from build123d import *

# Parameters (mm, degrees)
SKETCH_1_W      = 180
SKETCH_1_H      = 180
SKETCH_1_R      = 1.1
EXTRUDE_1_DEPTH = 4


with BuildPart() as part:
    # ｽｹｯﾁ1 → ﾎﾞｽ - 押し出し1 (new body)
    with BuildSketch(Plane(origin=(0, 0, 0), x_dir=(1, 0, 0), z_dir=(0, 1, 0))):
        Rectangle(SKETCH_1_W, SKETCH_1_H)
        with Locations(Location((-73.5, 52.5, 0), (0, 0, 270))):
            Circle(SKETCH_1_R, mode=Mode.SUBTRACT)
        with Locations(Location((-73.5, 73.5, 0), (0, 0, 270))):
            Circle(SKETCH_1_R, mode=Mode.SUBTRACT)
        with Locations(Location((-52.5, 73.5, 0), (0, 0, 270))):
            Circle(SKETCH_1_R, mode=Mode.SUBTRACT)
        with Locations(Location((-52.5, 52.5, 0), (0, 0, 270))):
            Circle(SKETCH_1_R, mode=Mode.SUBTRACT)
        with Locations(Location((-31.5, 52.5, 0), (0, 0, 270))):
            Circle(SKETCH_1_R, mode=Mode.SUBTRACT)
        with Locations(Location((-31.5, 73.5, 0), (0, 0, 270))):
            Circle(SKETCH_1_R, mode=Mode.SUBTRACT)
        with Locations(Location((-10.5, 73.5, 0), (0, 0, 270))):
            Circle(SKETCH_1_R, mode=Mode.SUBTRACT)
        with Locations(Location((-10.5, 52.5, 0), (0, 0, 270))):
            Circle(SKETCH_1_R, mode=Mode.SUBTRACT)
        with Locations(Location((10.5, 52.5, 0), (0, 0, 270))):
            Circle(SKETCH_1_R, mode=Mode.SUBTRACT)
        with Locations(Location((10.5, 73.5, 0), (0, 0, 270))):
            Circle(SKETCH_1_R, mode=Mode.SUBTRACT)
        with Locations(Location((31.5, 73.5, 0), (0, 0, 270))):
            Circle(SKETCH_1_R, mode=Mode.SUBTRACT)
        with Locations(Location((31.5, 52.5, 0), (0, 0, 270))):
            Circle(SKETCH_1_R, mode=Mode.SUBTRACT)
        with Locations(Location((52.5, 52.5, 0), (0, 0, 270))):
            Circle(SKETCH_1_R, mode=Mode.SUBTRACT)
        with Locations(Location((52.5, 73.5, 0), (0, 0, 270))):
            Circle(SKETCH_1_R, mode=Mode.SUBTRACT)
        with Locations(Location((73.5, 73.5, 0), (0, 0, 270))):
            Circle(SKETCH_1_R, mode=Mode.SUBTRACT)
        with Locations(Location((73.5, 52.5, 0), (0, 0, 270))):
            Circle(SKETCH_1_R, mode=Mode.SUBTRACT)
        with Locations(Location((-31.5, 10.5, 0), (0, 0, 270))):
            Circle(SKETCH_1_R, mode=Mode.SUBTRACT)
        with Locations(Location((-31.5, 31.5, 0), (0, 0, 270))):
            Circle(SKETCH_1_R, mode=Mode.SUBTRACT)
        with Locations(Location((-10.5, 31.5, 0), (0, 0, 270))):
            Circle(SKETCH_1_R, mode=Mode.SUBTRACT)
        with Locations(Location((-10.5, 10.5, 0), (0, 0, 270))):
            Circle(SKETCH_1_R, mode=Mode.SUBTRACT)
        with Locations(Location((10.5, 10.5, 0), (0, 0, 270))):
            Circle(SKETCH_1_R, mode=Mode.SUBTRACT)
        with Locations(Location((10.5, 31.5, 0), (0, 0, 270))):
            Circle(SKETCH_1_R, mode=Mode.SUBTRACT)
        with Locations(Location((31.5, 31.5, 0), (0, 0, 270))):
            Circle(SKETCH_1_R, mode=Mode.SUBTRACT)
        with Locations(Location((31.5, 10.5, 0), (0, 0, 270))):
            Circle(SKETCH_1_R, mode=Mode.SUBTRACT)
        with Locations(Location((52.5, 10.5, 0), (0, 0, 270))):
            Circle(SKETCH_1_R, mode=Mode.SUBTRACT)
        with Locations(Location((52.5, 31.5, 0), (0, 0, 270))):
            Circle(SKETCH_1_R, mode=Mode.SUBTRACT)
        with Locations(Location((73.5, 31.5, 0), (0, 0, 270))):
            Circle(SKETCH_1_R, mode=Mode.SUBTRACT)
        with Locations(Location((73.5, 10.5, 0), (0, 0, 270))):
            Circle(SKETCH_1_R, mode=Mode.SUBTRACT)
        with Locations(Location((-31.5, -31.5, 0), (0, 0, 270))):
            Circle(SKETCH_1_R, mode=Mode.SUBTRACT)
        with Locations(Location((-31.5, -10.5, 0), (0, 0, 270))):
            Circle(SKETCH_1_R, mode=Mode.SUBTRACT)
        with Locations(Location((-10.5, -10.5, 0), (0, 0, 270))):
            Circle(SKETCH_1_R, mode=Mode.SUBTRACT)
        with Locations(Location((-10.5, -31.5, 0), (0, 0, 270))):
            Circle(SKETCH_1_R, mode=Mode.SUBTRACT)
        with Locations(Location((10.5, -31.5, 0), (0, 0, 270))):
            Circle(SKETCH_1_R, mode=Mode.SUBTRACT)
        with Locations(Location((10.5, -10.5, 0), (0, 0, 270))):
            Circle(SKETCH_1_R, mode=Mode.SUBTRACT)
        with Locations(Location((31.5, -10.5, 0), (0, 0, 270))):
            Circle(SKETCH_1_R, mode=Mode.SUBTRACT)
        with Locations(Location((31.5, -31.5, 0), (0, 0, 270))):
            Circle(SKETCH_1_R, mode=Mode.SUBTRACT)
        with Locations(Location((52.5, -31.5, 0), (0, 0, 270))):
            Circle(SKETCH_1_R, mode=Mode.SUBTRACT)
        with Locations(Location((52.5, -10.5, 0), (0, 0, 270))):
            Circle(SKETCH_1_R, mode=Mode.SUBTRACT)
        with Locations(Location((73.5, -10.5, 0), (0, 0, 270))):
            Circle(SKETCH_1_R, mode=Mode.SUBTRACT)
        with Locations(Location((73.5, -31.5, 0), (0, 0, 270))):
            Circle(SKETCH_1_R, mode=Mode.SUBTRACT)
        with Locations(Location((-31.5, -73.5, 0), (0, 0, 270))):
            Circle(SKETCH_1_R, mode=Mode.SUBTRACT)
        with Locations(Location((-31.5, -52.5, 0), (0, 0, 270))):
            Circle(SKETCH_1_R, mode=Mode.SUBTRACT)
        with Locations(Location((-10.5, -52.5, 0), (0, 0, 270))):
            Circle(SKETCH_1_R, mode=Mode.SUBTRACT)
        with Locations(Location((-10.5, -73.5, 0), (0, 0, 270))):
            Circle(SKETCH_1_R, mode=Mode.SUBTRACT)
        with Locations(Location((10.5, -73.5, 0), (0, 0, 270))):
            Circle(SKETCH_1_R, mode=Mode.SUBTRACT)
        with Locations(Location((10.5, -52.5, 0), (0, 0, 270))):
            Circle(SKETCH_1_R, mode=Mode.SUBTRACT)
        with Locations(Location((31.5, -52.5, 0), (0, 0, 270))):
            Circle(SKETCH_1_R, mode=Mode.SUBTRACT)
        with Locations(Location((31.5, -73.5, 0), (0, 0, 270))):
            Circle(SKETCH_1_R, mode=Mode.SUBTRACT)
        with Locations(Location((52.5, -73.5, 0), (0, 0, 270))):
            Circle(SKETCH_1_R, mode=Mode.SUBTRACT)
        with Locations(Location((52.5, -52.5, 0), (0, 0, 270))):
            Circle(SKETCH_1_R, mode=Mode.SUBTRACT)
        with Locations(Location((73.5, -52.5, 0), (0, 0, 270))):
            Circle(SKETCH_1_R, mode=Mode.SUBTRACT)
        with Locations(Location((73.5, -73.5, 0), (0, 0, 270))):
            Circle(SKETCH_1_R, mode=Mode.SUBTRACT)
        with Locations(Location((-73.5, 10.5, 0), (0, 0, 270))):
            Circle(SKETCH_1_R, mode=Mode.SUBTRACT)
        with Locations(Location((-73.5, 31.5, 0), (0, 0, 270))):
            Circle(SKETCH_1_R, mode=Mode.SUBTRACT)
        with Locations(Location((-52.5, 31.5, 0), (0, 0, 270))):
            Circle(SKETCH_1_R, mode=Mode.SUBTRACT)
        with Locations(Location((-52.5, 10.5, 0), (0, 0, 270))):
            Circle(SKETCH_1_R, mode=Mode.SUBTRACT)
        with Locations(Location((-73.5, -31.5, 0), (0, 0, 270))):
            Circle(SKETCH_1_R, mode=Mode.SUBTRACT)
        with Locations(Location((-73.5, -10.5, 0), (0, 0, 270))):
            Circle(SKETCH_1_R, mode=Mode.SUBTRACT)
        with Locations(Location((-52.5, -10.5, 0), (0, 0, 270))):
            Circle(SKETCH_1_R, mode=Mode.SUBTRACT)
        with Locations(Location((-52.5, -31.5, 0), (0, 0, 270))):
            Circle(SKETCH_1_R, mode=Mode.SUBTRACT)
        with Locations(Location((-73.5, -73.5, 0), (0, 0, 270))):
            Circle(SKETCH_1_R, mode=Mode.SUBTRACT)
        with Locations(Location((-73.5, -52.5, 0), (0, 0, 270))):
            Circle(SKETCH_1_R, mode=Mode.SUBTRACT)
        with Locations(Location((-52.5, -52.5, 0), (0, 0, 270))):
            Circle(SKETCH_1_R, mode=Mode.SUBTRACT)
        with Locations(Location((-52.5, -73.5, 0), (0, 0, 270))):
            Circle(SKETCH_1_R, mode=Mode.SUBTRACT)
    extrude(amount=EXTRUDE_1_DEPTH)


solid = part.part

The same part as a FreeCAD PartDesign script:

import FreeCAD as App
import Part
import Sketcher

V = App.Vector
Q = App.Units.Quantity

doc = App.newDocument("Part")
body = doc.addObject("PartDesign::Body", "Body")

sketch1 = body.newObject("Sketcher::SketchObject", "Sketch")
sketch1.AttachmentSupport = (doc.getObject("XZ_Plane"), [""])
sketch1.MapMode = "FlatFace"
sketch1.addGeometry(Part.LineSegment(V(-90, -90, 0), V(-90, 90, 0)), False)
sketch1.addGeometry(Part.LineSegment(V(-90, 90, 0), V(90, 90, 0)), False)
sketch1.addGeometry(Part.LineSegment(V(90, 90, 0), V(90, -90, 0)), False)
sketch1.addGeometry(Part.LineSegment(V(90, -90, 0), V(-90, -90, 0)), False)
sketch1.addGeometry(Part.Circle(V(-73.5, 73.5, 0), V(0, 0, 1), 1.1), False)
sketch1.addGeometry(Part.Circle(V(-52.5, 73.5, 0), V(0, 0, 1), 1.1), False)
sketch1.addGeometry(Part.Circle(V(-73.5, 52.5, 0), V(0, 0, 1), 1.1), False)
sketch1.addGeometry(Part.Circle(V(-52.5, 52.5, 0), V(0, 0, 1), 1.1), False)
sketch1.addGeometry(Part.Circle(V(-31.5, 73.5, 0), V(0, 0, 1), 1.1), False)
sketch1.addGeometry(Part.Circle(V(-10.5, 73.5, 0), V(0, 0, 1), 1.1), False)
sketch1.addGeometry(Part.Circle(V(-31.5, 52.5, 0), V(0, 0, 1), 1.1), False)
sketch1.addGeometry(Part.Circle(V(-10.5, 52.5, 0), V(0, 0, 1), 1.1), False)
sketch1.addGeometry(Part.Circle(V(-73.5, 31.5, 0), V(0, 0, 1), 1.1), False)
sketch1.addGeometry(Part.Circle(V(-52.5, 31.5, 0), V(0, 0, 1), 1.1), False)
sketch1.addGeometry(Part.Circle(V(-73.5, 10.5, 0), V(0, 0, 1), 1.1), False)
sketch1.addGeometry(Part.Circle(V(-52.5, 10.5, 0), V(0, 0, 1), 1.1), False)
sketch1.addGeometry(Part.Circle(V(-31.5, 31.5, 0), V(0, 0, 1), 1.1), False)
sketch1.addGeometry(Part.Circle(V(-10.5, 31.5, 0), V(0, 0, 1), 1.1), False)
sketch1.addGeometry(Part.Circle(V(-31.5, 10.5, 0), V(0, 0, 1), 1.1), False)
sketch1.addGeometry(Part.Circle(V(-10.5, 10.5, 0), V(0, 0, 1), 1.1), False)
sketch1.addGeometry(Part.Circle(V(10.5, 73.5, 0), V(0, 0, 1), 1.1), False)
sketch1.addGeometry(Part.Circle(V(31.5, 73.5, 0), V(0, 0, 1), 1.1), False)
sketch1.addGeometry(Part.Circle(V(10.5, 52.5, 0), V(0, 0, 1), 1.1), False)
sketch1.addGeometry(Part.Circle(V(31.5, 52.5, 0), V(0, 0, 1), 1.1), False)
sketch1.addGeometry(Part.Circle(V(52.5, 73.5, 0), V(0, 0, 1), 1.1), False)
sketch1.addGeometry(Part.Circle(V(73.5, 73.5, 0), V(0, 0, 1), 1.1), False)
sketch1.addGeometry(Part.Circle(V(52.5, 52.5, 0), V(0, 0, 1), 1.1), False)
sketch1.addGeometry(Part.Circle(V(73.5, 52.5, 0), V(0, 0, 1), 1.1), False)
sketch1.addGeometry(Part.Circle(V(10.5, 31.5, 0), V(0, 0, 1), 1.1), False)
sketch1.addGeometry(Part.Circle(V(31.5, 31.5, 0), V(0, 0, 1), 1.1), False)
sketch1.addGeometry(Part.Circle(V(10.5, 10.5, 0), V(0, 0, 1), 1.1), False)
sketch1.addGeometry(Part.Circle(V(31.5, 10.5, 0), V(0, 0, 1), 1.1), False)
sketch1.addGeometry(Part.Circle(V(52.5, 31.5, 0), V(0, 0, 1), 1.1), False)
sketch1.addGeometry(Part.Circle(V(73.5, 31.5, 0), V(0, 0, 1), 1.1), False)
sketch1.addGeometry(Part.Circle(V(52.5, 10.5, 0), V(0, 0, 1), 1.1), False)
sketch1.addGeometry(Part.Circle(V(73.5, 10.5, 0), V(0, 0, 1), 1.1), False)
sketch1.addGeometry(Part.Circle(V(-73.5, -10.5, 0), V(0, 0, 1), 1.1), False)
sketch1.addGeometry(Part.Circle(V(-52.5, -10.5, 0), V(0, 0, 1), 1.1), False)
sketch1.addGeometry(Part.Circle(V(-73.5, -31.5, 0), V(0, 0, 1), 1.1), False)
sketch1.addGeometry(Part.Circle(V(-52.5, -31.5, 0), V(0, 0, 1), 1.1), False)
sketch1.addGeometry(Part.Circle(V(-31.5, -10.5, 0), V(0, 0, 1), 1.1), False)
sketch1.addGeometry(Part.Circle(V(-10.5, -10.5, 0), V(0, 0, 1), 1.1), False)
sketch1.addGeometry(Part.Circle(V(-31.5, -31.5, 0), V(0, 0, 1), 1.1), False)
sketch1.addGeometry(Part.Circle(V(-10.5, -31.5, 0), V(0, 0, 1), 1.1), False)
sketch1.addGeometry(Part.Circle(V(-73.5, -52.5, 0), V(0, 0, 1), 1.1), False)
sketch1.addGeometry(Part.Circle(V(-52.5, -52.5, 0), V(0, 0, 1), 1.1), False)
sketch1.addGeometry(Part.Circle(V(-73.5, -73.5, 0), V(0, 0, 1), 1.1), False)
sketch1.addGeometry(Part.Circle(V(-52.5, -73.5, 0), V(0, 0, 1), 1.1), False)
sketch1.addGeometry(Part.Circle(V(-31.5, -52.5, 0), V(0, 0, 1), 1.1), False)
sketch1.addGeometry(Part.Circle(V(-10.5, -52.5, 0), V(0, 0, 1), 1.1), False)
sketch1.addGeometry(Part.Circle(V(-31.5, -73.5, 0), V(0, 0, 1), 1.1), False)
sketch1.addGeometry(Part.Circle(V(-10.5, -73.5, 0), V(0, 0, 1), 1.1), False)
sketch1.addGeometry(Part.Circle(V(10.5, -10.5, 0), V(0, 0, 1), 1.1), False)
sketch1.addGeometry(Part.Circle(V(31.5, -10.5, 0), V(0, 0, 1), 1.1), False)
sketch1.addGeometry(Part.Circle(V(10.5, -31.5, 0), V(0, 0, 1), 1.1), False)
sketch1.addGeometry(Part.Circle(V(31.5, -31.5, 0), V(0, 0, 1), 1.1), False)
sketch1.addGeometry(Part.Circle(V(52.5, -10.5, 0), V(0, 0, 1), 1.1), False)
sketch1.addGeometry(Part.Circle(V(73.5, -10.5, 0), V(0, 0, 1), 1.1), False)
sketch1.addGeometry(Part.Circle(V(52.5, -31.5, 0), V(0, 0, 1), 1.1), False)
sketch1.addGeometry(Part.Circle(V(73.5, -31.5, 0), V(0, 0, 1), 1.1), False)
sketch1.addGeometry(Part.Circle(V(10.5, -52.5, 0), V(0, 0, 1), 1.1), False)
sketch1.addGeometry(Part.Circle(V(31.5, -52.5, 0), V(0, 0, 1), 1.1), False)
sketch1.addGeometry(Part.Circle(V(10.5, -73.5, 0), V(0, 0, 1), 1.1), False)
sketch1.addGeometry(Part.Circle(V(31.5, -73.5, 0), V(0, 0, 1), 1.1), False)
sketch1.addGeometry(Part.Circle(V(52.5, -52.5, 0), V(0, 0, 1), 1.1), False)
sketch1.addGeometry(Part.Circle(V(73.5, -52.5, 0), V(0, 0, 1), 1.1), False)
sketch1.addGeometry(Part.Circle(V(52.5, -73.5, 0), V(0, 0, 1), 1.1), False)
sketch1.addGeometry(Part.Circle(V(73.5, -73.5, 0), V(0, 0, 1), 1.1), False)
sketch1.addConstraint(Sketcher.Constraint("Coincident", 0, 2, 1, 1))
sketch1.addConstraint(Sketcher.Constraint("Coincident", 1, 2, 2, 1))
sketch1.addConstraint(Sketcher.Constraint("Coincident", 2, 2, 3, 1))
sketch1.addConstraint(Sketcher.Constraint("Coincident", 3, 2, 0, 1))
sketch1.addConstraint(Sketcher.Constraint("Vertical", 0))
sketch1.addConstraint(Sketcher.Constraint("Horizontal", 1))
sketch1.addConstraint(Sketcher.Constraint("Vertical", 2))
sketch1.addConstraint(Sketcher.Constraint("Horizontal", 3))
sketch1.addConstraint(Sketcher.Constraint("Equal", 4, 5))
sketch1.addConstraint(Sketcher.Constraint("Equal", 5, 6))
sketch1.addConstraint(Sketcher.Constraint("Equal", 6, 7))
sketch1.addConstraint(Sketcher.Constraint("Equal", 7, 8))
sketch1.addConstraint(Sketcher.Constraint("Equal", 8, 9))
sketch1.addConstraint(Sketcher.Constraint("Equal", 9, 10))
sketch1.addConstraint(Sketcher.Constraint("Equal", 10, 11))
sketch1.addConstraint(Sketcher.Constraint("Equal", 11, 12))
sketch1.addConstraint(Sketcher.Constraint("Equal", 12, 13))
sketch1.addConstraint(Sketcher.Constraint("Equal", 13, 14))
sketch1.addConstraint(Sketcher.Constraint("Equal", 14, 15))
sketch1.addConstraint(Sketcher.Constraint("Equal", 15, 16))
sketch1.addConstraint(Sketcher.Constraint("Equal", 16, 17))
sketch1.addConstraint(Sketcher.Constraint("Equal", 17, 18))
sketch1.addConstraint(Sketcher.Constraint("Equal", 18, 19))
sketch1.addConstraint(Sketcher.Constraint("Equal", 19, 20))
sketch1.addConstraint(Sketcher.Constraint("Equal", 20, 21))
sketch1.addConstraint(Sketcher.Constraint("Equal", 21, 22))
sketch1.addConstraint(Sketcher.Constraint("Equal", 22, 23))
sketch1.addConstraint(Sketcher.Constraint("Equal", 23, 24))
sketch1.addConstraint(Sketcher.Constraint("Equal", 24, 25))
sketch1.addConstraint(Sketcher.Constraint("Equal", 25, 26))
sketch1.addConstraint(Sketcher.Constraint("Equal", 26, 27))
sketch1.addConstraint(Sketcher.Constraint("Equal", 27, 28))
sketch1.addConstraint(Sketcher.Constraint("Equal", 28, 29))
sketch1.addConstraint(Sketcher.Constraint("Equal", 29, 30))
sketch1.addConstraint(Sketcher.Constraint("Equal", 30, 31))
sketch1.addConstraint(Sketcher.Constraint("Equal", 31, 32))
sketch1.addConstraint(Sketcher.Constraint("Equal", 32, 33))
sketch1.addConstraint(Sketcher.Constraint("Equal", 33, 34))
sketch1.addConstraint(Sketcher.Constraint("Equal", 34, 35))
sketch1.addConstraint(Sketcher.Constraint("Equal", 35, 36))
sketch1.addConstraint(Sketcher.Constraint("Equal", 36, 37))
sketch1.addConstraint(Sketcher.Constraint("Equal", 37, 38))
sketch1.addConstraint(Sketcher.Constraint("Equal", 38, 39))
sketch1.addConstraint(Sketcher.Constraint("Equal", 39, 40))
sketch1.addConstraint(Sketcher.Constraint("Equal", 40, 41))
sketch1.addConstraint(Sketcher.Constraint("Equal", 41, 42))
sketch1.addConstraint(Sketcher.Constraint("Equal", 42, 43))
sketch1.addConstraint(Sketcher.Constraint("Equal", 43, 44))
sketch1.addConstraint(Sketcher.Constraint("Equal", 44, 45))
sketch1.addConstraint(Sketcher.Constraint("Equal", 45, 46))
sketch1.addConstraint(Sketcher.Constraint("Equal", 46, 47))
sketch1.addConstraint(Sketcher.Constraint("Equal", 47, 48))
sketch1.addConstraint(Sketcher.Constraint("Equal", 48, 49))
sketch1.addConstraint(Sketcher.Constraint("Equal", 49, 50))
sketch1.addConstraint(Sketcher.Constraint("Equal", 50, 51))
sketch1.addConstraint(Sketcher.Constraint("Equal", 51, 52))
sketch1.addConstraint(Sketcher.Constraint("Equal", 52, 53))
sketch1.addConstraint(Sketcher.Constraint("Equal", 53, 54))
sketch1.addConstraint(Sketcher.Constraint("Equal", 54, 55))
sketch1.addConstraint(Sketcher.Constraint("Equal", 55, 56))
sketch1.addConstraint(Sketcher.Constraint("Equal", 56, 57))
sketch1.addConstraint(Sketcher.Constraint("Equal", 57, 58))
sketch1.addConstraint(Sketcher.Constraint("Equal", 58, 59))
sketch1.addConstraint(Sketcher.Constraint("Equal", 59, 60))
sketch1.addConstraint(Sketcher.Constraint("Equal", 60, 61))
sketch1.addConstraint(Sketcher.Constraint("Equal", 61, 62))
sketch1.addConstraint(Sketcher.Constraint("Equal", 62, 63))
sketch1.addConstraint(Sketcher.Constraint("Equal", 63, 64))
sketch1.addConstraint(Sketcher.Constraint("Equal", 64, 65))
sketch1.addConstraint(Sketcher.Constraint("Equal", 65, 66))
sketch1.addConstraint(Sketcher.Constraint("Equal", 66, 67))
sketch1.addConstraint(Sketcher.Constraint("Symmetric", 35, 3, 36, 3, -1, 1))
sketch1.addConstraint(Sketcher.Constraint("Symmetric", 34, 3, 37, 3, -1, 1))
sketch1.addConstraint(Sketcher.Constraint("Symmetric", 33, 3, 38, 3, -1, 1))
sketch1.addConstraint(Sketcher.Constraint("Symmetric", 32, 3, 39, 3, -1, 1))
sketch1.addConstraint(Sketcher.Constraint("Symmetric", 31, 3, 40, 3, -1, 1))
sketch1.addConstraint(Sketcher.Constraint("Symmetric", 30, 3, 41, 3, -1, 1))
sketch1.addConstraint(Sketcher.Constraint("Symmetric", 29, 3, 42, 3, -1, 1))
sketch1.addConstraint(Sketcher.Constraint("Symmetric", 28, 3, 43, 3, -1, 1))
sketch1.addConstraint(Sketcher.Constraint("Symmetric", 27, 3, 44, 3, -1, 1))
sketch1.addConstraint(Sketcher.Constraint("Symmetric", 26, 3, 45, 3, -1, 1))
sketch1.addConstraint(Sketcher.Constraint("Symmetric", 25, 3, 46, 3, -1, 1))
sketch1.addConstraint(Sketcher.Constraint("Symmetric", 24, 3, 47, 3, -1, 1))
sketch1.addConstraint(Sketcher.Constraint("Symmetric", 23, 3, 48, 3, -1, 1))
sketch1.addConstraint(Sketcher.Constraint("Symmetric", 22, 3, 49, 3, -1, 1))
sketch1.addConstraint(Sketcher.Constraint("Symmetric", 21, 3, 50, 3, -1, 1))
sketch1.addConstraint(Sketcher.Constraint("Symmetric", 20, 3, 51, 3, -1, 1))
sketch1.addConstraint(Sketcher.Constraint("Symmetric", 19, 3, 52, 3, -1, 1))
sketch1.addConstraint(Sketcher.Constraint("Symmetric", 18, 3, 53, 3, -1, 1))
sketch1.addConstraint(Sketcher.Constraint("Symmetric", 17, 3, 54, 3, -1, 1))
sketch1.addConstraint(Sketcher.Constraint("Symmetric", 16, 3, 55, 3, -1, 1))
sketch1.addConstraint(Sketcher.Constraint("Symmetric", 15, 3, 56, 3, -1, 1))
sketch1.addConstraint(Sketcher.Constraint("Symmetric", 14, 3, 57, 3, -1, 1))
sketch1.addConstraint(Sketcher.Constraint("Symmetric", 13, 3, 58, 3, -1, 1))
sketch1.addConstraint(Sketcher.Constraint("Symmetric", 12, 3, 59, 3, -1, 1))
sketch1.addConstraint(Sketcher.Constraint("Symmetric", 11, 3, 60, 3, -1, 1))
sketch1.addConstraint(Sketcher.Constraint("Symmetric", 10, 3, 61, 3, -1, 1))
sketch1.addConstraint(Sketcher.Constraint("Symmetric", 9, 3, 62, 3, -1, 1))
sketch1.addConstraint(Sketcher.Constraint("Symmetric", 8, 3, 63, 3, -1, 1))
sketch1.addConstraint(Sketcher.Constraint("Symmetric", 7, 3, 64, 3, -1, 1))
sketch1.addConstraint(Sketcher.Constraint("Symmetric", 6, 3, 65, 3, -1, 1))
sketch1.addConstraint(Sketcher.Constraint("Symmetric", 5, 3, 66, 3, -1, 1))
sketch1.addConstraint(Sketcher.Constraint("Symmetric", 4, 3, 67, 3, -1, 1))
sketch1.addConstraint(Sketcher.Constraint("Symmetric", 0, 2, 2, 2, -1, 1))
sketch1.addConstraint(Sketcher.Constraint("Symmetric", 9, 3, 20, 3, -2))
sketch1.addConstraint(Sketcher.Constraint("Symmetric", 8, 3, 21, 3, -2))
sketch1.addConstraint(Sketcher.Constraint("Symmetric", 11, 3, 22, 3, -2))
sketch1.addConstraint(Sketcher.Constraint("Symmetric", 10, 3, 23, 3, -2))
sketch1.addConstraint(Sketcher.Constraint("Symmetric", 5, 3, 24, 3, -2))
sketch1.addConstraint(Sketcher.Constraint("Symmetric", 4, 3, 25, 3, -2))
sketch1.addConstraint(Sketcher.Constraint("Symmetric", 7, 3, 26, 3, -2))
sketch1.addConstraint(Sketcher.Constraint("Symmetric", 6, 3, 27, 3, -2))
sketch1.addConstraint(Sketcher.Constraint("Symmetric", 17, 3, 28, 3, -2))
sketch1.addConstraint(Sketcher.Constraint("Symmetric", 16, 3, 29, 3, -2))
sketch1.addConstraint(Sketcher.Constraint("Symmetric", 19, 3, 30, 3, -2))
sketch1.addConstraint(Sketcher.Constraint("Symmetric", 18, 3, 31, 3, -2))
sketch1.addConstraint(Sketcher.Constraint("Symmetric", 13, 3, 32, 3, -2))
sketch1.addConstraint(Sketcher.Constraint("Symmetric", 12, 3, 33, 3, -2))
sketch1.addConstraint(Sketcher.Constraint("Symmetric", 15, 3, 34, 3, -2))
sketch1.addConstraint(Sketcher.Constraint("Symmetric", 14, 3, 35, 3, -2))
sketch1.addConstraint(Sketcher.Constraint("Horizontal", 4, 3, 5, 3))
sketch1.addConstraint(Sketcher.Constraint("Horizontal", 6, 3, 7, 3))
sketch1.addConstraint(Sketcher.Constraint("Horizontal", 5, 3, 8, 3))
sketch1.addConstraint(Sketcher.Constraint("Horizontal", 8, 3, 9, 3))
sketch1.addConstraint(Sketcher.Constraint("Horizontal", 7, 3, 10, 3))
sketch1.addConstraint(Sketcher.Constraint("Horizontal", 10, 3, 11, 3))
sketch1.addConstraint(Sketcher.Constraint("Horizontal", 12, 3, 13, 3))
sketch1.addConstraint(Sketcher.Constraint("Horizontal", 14, 3, 15, 3))
sketch1.addConstraint(Sketcher.Constraint("Horizontal", 13, 3, 16, 3))
sketch1.addConstraint(Sketcher.Constraint("Horizontal", 16, 3, 17, 3))
sketch1.addConstraint(Sketcher.Constraint("Horizontal", 15, 3, 18, 3))
sketch1.addConstraint(Sketcher.Constraint("Horizontal", 18, 3, 19, 3))
sketch1.addConstraint(Sketcher.Constraint("Vertical", 4, 3, 6, 3))
sketch1.addConstraint(Sketcher.Constraint("Vertical", 5, 3, 7, 3))
sketch1.addConstraint(Sketcher.Constraint("Vertical", 8, 3, 10, 3))
sketch1.addConstraint(Sketcher.Constraint("Vertical", 9, 3, 11, 3))
sketch1.addConstraint(Sketcher.Constraint("Vertical", 6, 3, 12, 3))
sketch1.addConstraint(Sketcher.Constraint("Vertical", 7, 3, 13, 3))
sketch1.addConstraint(Sketcher.Constraint("Vertical", 12, 3, 14, 3))
sketch1.addConstraint(Sketcher.Constraint("Vertical", 13, 3, 15, 3))
sketch1.addConstraint(Sketcher.Constraint("Vertical", 10, 3, 16, 3))
sketch1.addConstraint(Sketcher.Constraint("Vertical", 11, 3, 17, 3))
sketch1.addConstraint(Sketcher.Constraint("Vertical", 16, 3, 18, 3))
sketch1.addConstraint(Sketcher.Constraint("Vertical", 17, 3, 19, 3))
sketch1.addConstraint(Sketcher.Constraint("Equal", 3, 0))
sketch1.addConstraint(Sketcher.Constraint("Diameter", 4, Q("2.2 mm")))
sketch1.addConstraint(Sketcher.Constraint("DistanceX", 1, 1, 1, 2, Q("180 mm")))
sketch1.addConstraint(Sketcher.Constraint("DistanceX", 4, 3, -1, 1, Q("73.5 mm")))
sketch1.addConstraint(Sketcher.Constraint("DistanceY", -1, 1, 4, 3, Q("73.5 mm")))
sketch1.addConstraint(Sketcher.Constraint("DistanceX", 5, 3, -1, 1, Q("52.5 mm")))
sketch1.addConstraint(Sketcher.Constraint("DistanceY", -1, 1, 6, 3, Q("52.5 mm")))
sketch1.addConstraint(Sketcher.Constraint("DistanceX", 8, 3, -1, 1, Q("31.5 mm")))
sketch1.addConstraint(Sketcher.Constraint("DistanceX", 9, 3, -1, 1, Q("10.5 mm")))
sketch1.addConstraint(Sketcher.Constraint("DistanceY", -1, 1, 12, 3, Q("31.5 mm")))
sketch1.addConstraint(Sketcher.Constraint("DistanceY", -1, 1, 14, 3, Q("10.5 mm")))
pad1 = body.newObject("PartDesign::Pad", "Pad")
pad1.Profile = sketch1
pad1.Length = 4
pad1.Reversed = True

doc.recompute()
